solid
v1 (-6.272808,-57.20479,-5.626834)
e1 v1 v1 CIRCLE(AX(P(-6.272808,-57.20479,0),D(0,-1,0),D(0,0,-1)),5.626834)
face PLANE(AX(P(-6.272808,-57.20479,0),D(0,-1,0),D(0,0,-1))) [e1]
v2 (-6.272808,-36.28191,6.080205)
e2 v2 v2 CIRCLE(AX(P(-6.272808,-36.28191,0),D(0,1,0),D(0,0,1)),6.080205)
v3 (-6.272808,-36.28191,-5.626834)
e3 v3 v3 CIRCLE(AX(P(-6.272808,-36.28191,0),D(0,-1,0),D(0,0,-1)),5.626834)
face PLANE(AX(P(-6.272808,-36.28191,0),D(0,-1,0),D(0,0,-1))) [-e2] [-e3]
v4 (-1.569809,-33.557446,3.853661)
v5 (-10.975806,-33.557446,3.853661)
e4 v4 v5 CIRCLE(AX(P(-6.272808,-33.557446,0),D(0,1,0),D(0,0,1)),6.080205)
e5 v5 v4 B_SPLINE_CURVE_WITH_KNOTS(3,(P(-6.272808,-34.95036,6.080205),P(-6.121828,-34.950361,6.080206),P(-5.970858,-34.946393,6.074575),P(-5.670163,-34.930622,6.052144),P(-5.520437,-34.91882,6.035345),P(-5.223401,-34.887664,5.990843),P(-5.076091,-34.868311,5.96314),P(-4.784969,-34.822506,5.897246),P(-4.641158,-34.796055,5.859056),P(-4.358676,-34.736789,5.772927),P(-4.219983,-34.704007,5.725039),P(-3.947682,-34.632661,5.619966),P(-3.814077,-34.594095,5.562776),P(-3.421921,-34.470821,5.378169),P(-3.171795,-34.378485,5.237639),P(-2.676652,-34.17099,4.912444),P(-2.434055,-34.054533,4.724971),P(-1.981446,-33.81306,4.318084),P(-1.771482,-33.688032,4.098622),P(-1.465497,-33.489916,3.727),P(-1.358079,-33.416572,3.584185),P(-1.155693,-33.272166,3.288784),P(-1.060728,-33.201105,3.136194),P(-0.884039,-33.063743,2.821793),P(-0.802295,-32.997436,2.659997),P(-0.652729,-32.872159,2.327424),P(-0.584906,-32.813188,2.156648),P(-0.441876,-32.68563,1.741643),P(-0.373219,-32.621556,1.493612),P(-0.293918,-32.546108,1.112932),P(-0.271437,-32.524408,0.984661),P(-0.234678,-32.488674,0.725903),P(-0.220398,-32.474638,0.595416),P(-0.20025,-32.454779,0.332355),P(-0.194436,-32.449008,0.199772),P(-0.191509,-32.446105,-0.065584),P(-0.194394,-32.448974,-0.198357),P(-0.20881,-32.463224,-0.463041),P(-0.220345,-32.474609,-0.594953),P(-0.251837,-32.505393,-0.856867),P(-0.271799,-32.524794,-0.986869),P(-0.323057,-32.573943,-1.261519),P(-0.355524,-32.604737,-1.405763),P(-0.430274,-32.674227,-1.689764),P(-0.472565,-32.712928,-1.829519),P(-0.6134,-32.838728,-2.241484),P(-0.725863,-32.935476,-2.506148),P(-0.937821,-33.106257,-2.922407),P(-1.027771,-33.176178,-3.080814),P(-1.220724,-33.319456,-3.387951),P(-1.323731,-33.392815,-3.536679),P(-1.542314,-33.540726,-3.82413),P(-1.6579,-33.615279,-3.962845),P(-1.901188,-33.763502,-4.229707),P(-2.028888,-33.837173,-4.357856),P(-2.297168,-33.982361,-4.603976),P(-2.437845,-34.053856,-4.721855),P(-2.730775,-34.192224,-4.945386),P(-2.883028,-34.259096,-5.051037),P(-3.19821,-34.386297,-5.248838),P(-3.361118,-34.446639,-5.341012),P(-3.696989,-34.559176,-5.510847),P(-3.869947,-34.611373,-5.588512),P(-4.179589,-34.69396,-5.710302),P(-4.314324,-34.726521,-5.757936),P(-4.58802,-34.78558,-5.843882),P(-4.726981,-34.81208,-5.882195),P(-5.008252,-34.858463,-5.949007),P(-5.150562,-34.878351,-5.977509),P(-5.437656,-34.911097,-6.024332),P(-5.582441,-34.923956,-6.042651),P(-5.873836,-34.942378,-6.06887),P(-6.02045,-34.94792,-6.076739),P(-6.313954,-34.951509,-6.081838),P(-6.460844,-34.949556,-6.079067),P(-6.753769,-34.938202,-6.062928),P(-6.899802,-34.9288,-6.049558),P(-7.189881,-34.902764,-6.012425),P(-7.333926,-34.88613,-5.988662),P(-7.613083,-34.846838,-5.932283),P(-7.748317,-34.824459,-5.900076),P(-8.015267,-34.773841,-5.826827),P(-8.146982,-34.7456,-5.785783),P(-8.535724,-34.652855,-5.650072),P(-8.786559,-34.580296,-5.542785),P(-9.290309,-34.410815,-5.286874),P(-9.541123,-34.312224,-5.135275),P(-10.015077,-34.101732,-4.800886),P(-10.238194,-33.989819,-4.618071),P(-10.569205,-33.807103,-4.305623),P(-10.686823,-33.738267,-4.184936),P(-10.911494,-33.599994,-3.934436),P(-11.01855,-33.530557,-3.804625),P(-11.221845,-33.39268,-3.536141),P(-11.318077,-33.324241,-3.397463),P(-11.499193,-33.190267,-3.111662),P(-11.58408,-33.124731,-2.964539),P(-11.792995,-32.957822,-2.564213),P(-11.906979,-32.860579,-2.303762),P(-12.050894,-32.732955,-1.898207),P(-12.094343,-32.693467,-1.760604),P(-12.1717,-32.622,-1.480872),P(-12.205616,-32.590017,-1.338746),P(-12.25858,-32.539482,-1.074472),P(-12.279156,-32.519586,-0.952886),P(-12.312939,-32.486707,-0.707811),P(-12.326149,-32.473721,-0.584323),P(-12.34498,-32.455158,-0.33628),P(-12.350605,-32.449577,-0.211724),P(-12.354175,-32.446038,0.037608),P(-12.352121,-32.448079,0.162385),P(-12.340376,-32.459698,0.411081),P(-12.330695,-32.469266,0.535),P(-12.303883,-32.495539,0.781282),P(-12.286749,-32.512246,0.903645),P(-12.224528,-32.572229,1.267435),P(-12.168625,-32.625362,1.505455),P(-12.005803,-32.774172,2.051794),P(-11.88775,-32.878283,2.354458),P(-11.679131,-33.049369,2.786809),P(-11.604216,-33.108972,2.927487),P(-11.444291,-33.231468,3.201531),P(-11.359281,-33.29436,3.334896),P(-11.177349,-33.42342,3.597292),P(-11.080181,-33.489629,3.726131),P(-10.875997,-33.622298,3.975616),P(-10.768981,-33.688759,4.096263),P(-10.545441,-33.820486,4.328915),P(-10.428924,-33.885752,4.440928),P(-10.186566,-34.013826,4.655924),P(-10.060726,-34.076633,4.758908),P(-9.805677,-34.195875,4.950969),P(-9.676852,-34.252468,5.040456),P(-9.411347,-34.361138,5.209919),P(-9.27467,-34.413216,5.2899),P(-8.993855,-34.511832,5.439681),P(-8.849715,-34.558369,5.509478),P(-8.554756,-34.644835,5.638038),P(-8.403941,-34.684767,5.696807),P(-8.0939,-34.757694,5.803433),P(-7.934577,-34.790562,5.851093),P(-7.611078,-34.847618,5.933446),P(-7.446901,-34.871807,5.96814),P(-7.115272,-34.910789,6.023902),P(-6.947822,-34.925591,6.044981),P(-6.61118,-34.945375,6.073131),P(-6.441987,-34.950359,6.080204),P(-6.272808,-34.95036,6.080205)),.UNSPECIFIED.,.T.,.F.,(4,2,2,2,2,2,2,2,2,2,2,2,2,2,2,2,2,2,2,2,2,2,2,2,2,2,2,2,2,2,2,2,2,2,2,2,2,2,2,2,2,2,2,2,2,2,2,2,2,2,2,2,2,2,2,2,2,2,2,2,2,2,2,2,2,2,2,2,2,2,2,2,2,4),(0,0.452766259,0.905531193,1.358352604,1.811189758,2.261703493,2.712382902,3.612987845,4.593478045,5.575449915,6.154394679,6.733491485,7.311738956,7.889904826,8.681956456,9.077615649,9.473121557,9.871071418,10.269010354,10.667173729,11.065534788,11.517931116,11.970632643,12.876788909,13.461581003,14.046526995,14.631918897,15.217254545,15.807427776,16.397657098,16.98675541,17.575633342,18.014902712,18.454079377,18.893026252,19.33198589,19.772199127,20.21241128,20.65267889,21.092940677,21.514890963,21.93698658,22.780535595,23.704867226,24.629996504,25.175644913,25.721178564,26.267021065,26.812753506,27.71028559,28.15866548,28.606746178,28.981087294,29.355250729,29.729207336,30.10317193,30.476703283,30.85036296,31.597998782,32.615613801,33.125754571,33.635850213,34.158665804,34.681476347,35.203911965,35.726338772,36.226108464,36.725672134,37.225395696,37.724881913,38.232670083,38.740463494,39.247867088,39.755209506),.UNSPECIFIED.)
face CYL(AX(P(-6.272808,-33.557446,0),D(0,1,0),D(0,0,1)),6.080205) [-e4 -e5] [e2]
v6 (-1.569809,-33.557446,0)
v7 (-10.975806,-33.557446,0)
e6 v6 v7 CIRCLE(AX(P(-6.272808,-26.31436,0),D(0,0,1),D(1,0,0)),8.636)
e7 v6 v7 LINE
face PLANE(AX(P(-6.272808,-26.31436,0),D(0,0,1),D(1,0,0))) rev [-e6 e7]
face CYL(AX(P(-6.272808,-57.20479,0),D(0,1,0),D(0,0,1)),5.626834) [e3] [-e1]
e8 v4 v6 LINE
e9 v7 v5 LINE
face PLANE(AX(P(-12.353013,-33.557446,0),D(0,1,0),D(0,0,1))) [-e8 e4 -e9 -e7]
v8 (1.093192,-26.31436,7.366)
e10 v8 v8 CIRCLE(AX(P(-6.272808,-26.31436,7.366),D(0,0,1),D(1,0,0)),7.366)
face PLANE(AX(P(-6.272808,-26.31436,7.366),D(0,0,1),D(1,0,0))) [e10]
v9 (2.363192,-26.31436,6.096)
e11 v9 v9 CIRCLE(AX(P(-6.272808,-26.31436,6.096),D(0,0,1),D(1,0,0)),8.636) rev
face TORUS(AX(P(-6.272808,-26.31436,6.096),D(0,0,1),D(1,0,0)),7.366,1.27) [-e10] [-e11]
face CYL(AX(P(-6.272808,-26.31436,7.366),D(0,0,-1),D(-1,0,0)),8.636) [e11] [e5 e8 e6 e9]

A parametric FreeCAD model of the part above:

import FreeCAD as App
import Part
import Sketcher

V = App.Vector
Q = App.Units.Quantity


def edges_at(feature, points):
    """Names of the edges that pass closest to the given points."""
    edges = feature.Shape.Edges
    near = lambda p: min(range(len(edges)), key=lambda i: edges[i].distToShape(Part.Vertex(*p))[0])
    return sorted({f"Edge{near(p) + 1}" for p in points})

doc = App.newDocument("Part")
params = doc.addObject("Spreadsheet::Sheet", "Params")
for row, (alias, value) in enumerate([
    ("sketch1_diameter", "0.68 in"),
    ("pad1_length", "0.29 in"),
    ("fillet_radius", "0.05 in"),
    ("revolution_angle", "360 deg"),
    ("pad2_length", "20.92288 mm"),
], start=1):
    params.set(f"A{row}", alias)
    params.set(f"B{row}", "=" + value)
    params.setAlias(f"B{row}", alias)

body = doc.addObject("PartDesign::Body", "Body")

# Sketch on XY plane
sketch1 = body.newObject("Sketcher::SketchObject", "Sketch")
sketch1.AttachmentSupport = (doc.getObject("XY_Plane"), [""])
sketch1.MapMode = "FlatFace"
sketch1.addGeometry(Part.Circle(V(-6, -26, 0), V(0, 0, 1), 9), False)
sketch1.addConstraint(Sketcher.Constraint("Diameter", 0, Q("0.68 in")))
sketch1.addConstraint(Sketcher.Constraint("DistanceY", 0, 3, -1, 1, 26.31436))
sketch1.addConstraint(Sketcher.Constraint("DistanceX", 0, 3, -1, 1, 6.272808))
sketch1.setExpression("Constraints[0]", "Params.sketch1_diameter")
pad1 = body.newObject("PartDesign::Pad", "Pad")
pad1.Profile = sketch1
pad1.setExpression("Length", "Params.pad1_length")
doc.recompute()

fillet = body.newObject("PartDesign::Fillet", "Fillet")
fillet.Base = (pad1, edges_at(pad1, [(-14.909, -26.314, 7.366)]))
fillet.setExpression("Radius", "Params.fillet_radius")

# Sketch on XY plane
sketch2 = body.newObject("Sketcher::SketchObject", "Sketch001")
sketch2.AttachmentSupport = (doc.getObject("XY_Plane"), [""])
sketch2.MapMode = "FlatFace"
sketch2.addGeometry(Part.LineSegment(V(-12.4, -33.6, 0), V(-12.4, -36.3, 0)), False)
sketch2.addGeometry(Part.LineSegment(V(-12.4, -36.3, 0), V(-6.3, -36.3, 0)), False)
sketch2.addGeometry(Part.LineSegment(V(-6.3, -36.3, 0), V(-6.3, -33.6, 0)), False)
sketch2.addGeometry(Part.LineSegment(V(-6.3, -33.6, 0), V(-12.4, -33.6, 0)), False)
sketch2.addGeometry(Part.LineSegment(V(-6.3, -33.6, 0), V(-6.3, -36.3, 0)), True)  # axis
sketch2.addConstraint(Sketcher.Constraint("Coincident", 0, 2, 1, 1))
sketch2.addConstraint(Sketcher.Constraint("Coincident", 1, 2, 2, 1))
sketch2.addConstraint(Sketcher.Constraint("Coincident", 2, 2, 3, 1))
sketch2.addConstraint(Sketcher.Constraint("Coincident", 3, 2, 0, 1))
sketch2.addConstraint(Sketcher.Constraint("Vertical", 0))
sketch2.addConstraint(Sketcher.Constraint("Horizontal", 1))
sketch2.addConstraint(Sketcher.Constraint("Vertical", 2))
sketch2.addConstraint(Sketcher.Constraint("Horizontal", 3))
sketch2.addConstraint(Sketcher.Constraint("Vertical", 4))
sketch2.addConstraint(Sketcher.Constraint("Coincident", 4, 1, 2, 2))
sketch2.addConstraint(Sketcher.Constraint("Horizontal", 0, 2, 4, 2))
sketch2.addConstraint(Sketcher.Constraint("DistanceX", 1, 1, 1, 2, 6.080205))
sketch2.addConstraint(Sketcher.Constraint("DistanceY", 0, 2, 0, 1, 2.724464))
sketch2.addConstraint(Sketcher.Constraint("DistanceY", 0, 2, -1, 1, 36.28191))
sketch2.addConstraint(Sketcher.Constraint("DistanceX", 0, 2, -1, 1, 12.353013))
revolution = body.newObject("PartDesign::Revolution", "Revolution")
revolution.Profile = sketch2
revolution.ReferenceAxis = (sketch2, ["Axis0"])
revolution.setExpression("Angle", "Params.revolution_angle")

# Sketch on XZ plane
sketch3 = body.newObject("Sketcher::SketchObject", "Sketch002")
sketch3.AttachmentSupport = (doc.getObject("XZ_Plane"), [""])
sketch3.MapMode = "FlatFace"
sketch3.AttachmentOffset = App.Placement(V(0, 0, 36.28191), App.Rotation())
sketch3.addGeometry(Part.Circle(V(-6, 0, 0), V(0, 0, 1), 6), False)
sketch3.addConstraint(Sketcher.Constraint("PointOnObject", 0, 3, -1))
sketch3.addConstraint(Sketcher.Constraint("Diameter", 0, 11.253668))
sketch3.addConstraint(Sketcher.Constraint("DistanceX", 0, 3, -1, 1, 6.272808))
pad2 = body.newObject("PartDesign::Pad", "Pad001")
pad2.Profile = sketch3
pad2.setExpression("Length", "Params.pad2_length")

doc.recompute()
